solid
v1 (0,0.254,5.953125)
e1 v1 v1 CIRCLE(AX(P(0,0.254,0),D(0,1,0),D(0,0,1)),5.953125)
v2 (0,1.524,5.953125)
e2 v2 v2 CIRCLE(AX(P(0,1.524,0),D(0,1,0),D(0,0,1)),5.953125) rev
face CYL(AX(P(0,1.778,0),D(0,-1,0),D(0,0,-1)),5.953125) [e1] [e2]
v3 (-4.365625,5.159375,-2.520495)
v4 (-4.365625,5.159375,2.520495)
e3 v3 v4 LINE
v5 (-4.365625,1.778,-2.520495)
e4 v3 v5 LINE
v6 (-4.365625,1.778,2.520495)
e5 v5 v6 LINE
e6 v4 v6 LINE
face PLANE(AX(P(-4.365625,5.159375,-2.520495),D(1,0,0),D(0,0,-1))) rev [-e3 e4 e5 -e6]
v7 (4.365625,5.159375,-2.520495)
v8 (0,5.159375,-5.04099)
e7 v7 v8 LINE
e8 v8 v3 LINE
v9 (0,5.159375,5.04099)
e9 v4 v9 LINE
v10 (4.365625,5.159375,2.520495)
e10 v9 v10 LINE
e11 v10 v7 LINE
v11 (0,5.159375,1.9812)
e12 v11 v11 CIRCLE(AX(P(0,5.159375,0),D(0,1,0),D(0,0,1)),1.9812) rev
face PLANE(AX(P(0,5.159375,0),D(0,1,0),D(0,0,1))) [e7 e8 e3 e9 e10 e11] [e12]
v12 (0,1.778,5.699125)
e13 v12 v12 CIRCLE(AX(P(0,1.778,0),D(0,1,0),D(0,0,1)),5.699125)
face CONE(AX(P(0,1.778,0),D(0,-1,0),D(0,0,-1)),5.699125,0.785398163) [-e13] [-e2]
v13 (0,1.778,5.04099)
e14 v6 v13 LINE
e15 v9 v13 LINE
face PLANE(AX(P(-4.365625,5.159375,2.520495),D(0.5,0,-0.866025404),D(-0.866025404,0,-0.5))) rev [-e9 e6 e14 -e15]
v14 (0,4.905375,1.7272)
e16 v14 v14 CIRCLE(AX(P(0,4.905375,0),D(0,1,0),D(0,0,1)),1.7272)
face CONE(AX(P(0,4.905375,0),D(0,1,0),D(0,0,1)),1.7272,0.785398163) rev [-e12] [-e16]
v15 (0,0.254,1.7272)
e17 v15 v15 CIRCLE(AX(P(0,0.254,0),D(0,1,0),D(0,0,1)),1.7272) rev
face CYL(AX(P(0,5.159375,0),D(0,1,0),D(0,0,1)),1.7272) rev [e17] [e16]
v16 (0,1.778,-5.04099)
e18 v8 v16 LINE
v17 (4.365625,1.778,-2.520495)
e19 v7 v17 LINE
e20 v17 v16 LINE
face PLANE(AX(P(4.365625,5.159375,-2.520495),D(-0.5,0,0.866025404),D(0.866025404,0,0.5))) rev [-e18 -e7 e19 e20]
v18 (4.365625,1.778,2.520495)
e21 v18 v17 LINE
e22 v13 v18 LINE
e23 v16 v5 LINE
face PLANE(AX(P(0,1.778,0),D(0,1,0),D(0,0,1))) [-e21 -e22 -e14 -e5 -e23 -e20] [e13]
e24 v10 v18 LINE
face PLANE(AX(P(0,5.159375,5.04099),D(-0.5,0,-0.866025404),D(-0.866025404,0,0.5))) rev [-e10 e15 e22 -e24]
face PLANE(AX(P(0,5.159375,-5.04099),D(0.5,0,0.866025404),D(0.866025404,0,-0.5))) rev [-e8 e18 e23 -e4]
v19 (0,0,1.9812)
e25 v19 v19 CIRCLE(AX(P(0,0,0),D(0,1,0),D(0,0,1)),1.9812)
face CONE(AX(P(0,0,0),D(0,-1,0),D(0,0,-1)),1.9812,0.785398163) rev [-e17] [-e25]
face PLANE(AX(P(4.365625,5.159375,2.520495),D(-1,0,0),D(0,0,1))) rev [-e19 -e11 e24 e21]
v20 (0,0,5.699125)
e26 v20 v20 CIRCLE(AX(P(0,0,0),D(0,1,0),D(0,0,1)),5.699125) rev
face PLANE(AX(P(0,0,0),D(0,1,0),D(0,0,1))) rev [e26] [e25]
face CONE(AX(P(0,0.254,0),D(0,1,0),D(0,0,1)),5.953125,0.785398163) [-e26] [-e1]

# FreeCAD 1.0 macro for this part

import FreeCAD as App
import Part
import Sketcher
from FreeCAD import Vector
Q = App.Units.Quantity


def edges_at(feature, points):
    """Names of the edges that pass closest to the given points."""
    edges = feature.Shape.Edges
    near = lambda p: min(range(len(edges)), key=lambda i: edges[i].distToShape(Part.Vertex(*p))[0])
    return sorted({f"Edge{near(p) + 1}" for p in points})


def add_polygon(sketch, points):
    """Adds a closed chain of lines whose ends are joined by coincident constraints."""
    first, n = sketch.GeometryCount, len(points)
    for a, b in zip(points, points[1:] + points[:1]):
        sketch.addGeometry(Part.LineSegment(App.Vector(*a, 0), App.Vector(*b, 0)), False)
    for i in range(n):
        sketch.addConstraint(Sketcher.Constraint("Coincident", first + i, 2, first + (i + 1) % n, 1))

doc = App.newDocument("Part")
body = doc.addObject("PartDesign::Body", "Body")

# Sketch on XZ plane
sketch1 = body.newObject("Sketcher::SketchObject", "Sketch")
sketch1.AttachmentSupport = (doc.getObject("XZ_Plane"), [""])
sketch1.MapMode = "FlatFace"
sketch1.addGeometry(Part.Circle(Vector(0, 0, 0), Vector(0, 0, 1), 6), False)
sketch1.addConstraint([
    Sketcher.Constraint("Coincident", 0, 3, -1, 1),
    Sketcher.Constraint("Diameter", 0, Q("0.46875 in")),
])
pad1 = body.newObject("PartDesign::Pad", "Pad")
pad1.Profile = sketch1
pad1.Length = Q("0.07 in")
pad1.Reversed = True

# Sketch on XZ plane
sketch2 = body.newObject("Sketcher::SketchObject", "Sketch001")
sketch2.AttachmentSupport = (doc.getObject("XZ_Plane"), [""])
sketch2.MapMode = "FlatFace"
sketch2.AttachmentOffset = App.Placement(Vector(0, 0, -0.07 * 25.4), App.Rotation())
add_polygon(sketch2, [(4, 3), (4, -3), (0, -5), (-4, -3), (-4, 3), (0, 5)])  # lines 0-5
sketch2.addConstraint([
    Sketcher.Constraint("Vertical", 0),
    Sketcher.Constraint("Vertical", 3),
    Sketcher.Constraint("Symmetric", 0, 2, 3, 2, -1, 1),
    Sketcher.Constraint("Symmetric", 1, 2, 4, 2, -1, 1),
    Sketcher.Constraint("PointOnObject", 1, 2, -2),
    Sketcher.Constraint("Parallel", 2, 5),
    Sketcher.Constraint("Horizontal", 0, 2, 2, 2),
    Sketcher.Constraint("Angle", 1, Q("-150 deg")),
    Sketcher.Constraint("DistanceX", -1, 1, 0, 2, Q("0.171875 in")),
    Sketcher.Constraint("DistanceY", 0, 2, 0, 1, 5.04099),
])
pad2 = body.newObject("PartDesign::Pad", "Pad001")
pad2.Profile = sketch2
pad2.Length = 3.381375
pad2.Reversed = True

# Sketch on XZ plane
sketch3 = body.newObject("Sketcher::SketchObject", "Sketch002")
sketch3.AttachmentSupport = (doc.getObject("XZ_Plane"), [""])
sketch3.MapMode = "FlatFace"
sketch3.AttachmentOffset = App.Placement(Vector(0, 0, -0.203125 * 25.4), App.Rotation())
sketch3.addGeometry(Part.Circle(Vector(0, 0, 0), Vector(0, 0, 1), 1.7), False)
sketch3.addConstraint([
    Sketcher.Constraint("Coincident", 0, 3, -1, 1),
    Sketcher.Constraint("Diameter", 0, Q("0.136 in")),
])
doc.recompute()
hole = body.newObject("PartDesign::Hole", "Hole")
hole.Profile = sketch3
hole.ThreadType = "None"
hole.Diameter = Q("0.136 in")
hole.DepthType = "ThroughAll"
hole.Reversed = True
doc.recompute()

chamfer = body.newObject("PartDesign::Chamfer", "Chamfer")
chamfer.Base = (hole, edges_at(hole, [
    (-5.953, 0, 0),
    (1.727, 5.159, 0),
    (1.727, 0, 0),
    (-5.953, 1.778, 0),
]))
chamfer.Size = Q("0.01 in")

doc.recompute()
